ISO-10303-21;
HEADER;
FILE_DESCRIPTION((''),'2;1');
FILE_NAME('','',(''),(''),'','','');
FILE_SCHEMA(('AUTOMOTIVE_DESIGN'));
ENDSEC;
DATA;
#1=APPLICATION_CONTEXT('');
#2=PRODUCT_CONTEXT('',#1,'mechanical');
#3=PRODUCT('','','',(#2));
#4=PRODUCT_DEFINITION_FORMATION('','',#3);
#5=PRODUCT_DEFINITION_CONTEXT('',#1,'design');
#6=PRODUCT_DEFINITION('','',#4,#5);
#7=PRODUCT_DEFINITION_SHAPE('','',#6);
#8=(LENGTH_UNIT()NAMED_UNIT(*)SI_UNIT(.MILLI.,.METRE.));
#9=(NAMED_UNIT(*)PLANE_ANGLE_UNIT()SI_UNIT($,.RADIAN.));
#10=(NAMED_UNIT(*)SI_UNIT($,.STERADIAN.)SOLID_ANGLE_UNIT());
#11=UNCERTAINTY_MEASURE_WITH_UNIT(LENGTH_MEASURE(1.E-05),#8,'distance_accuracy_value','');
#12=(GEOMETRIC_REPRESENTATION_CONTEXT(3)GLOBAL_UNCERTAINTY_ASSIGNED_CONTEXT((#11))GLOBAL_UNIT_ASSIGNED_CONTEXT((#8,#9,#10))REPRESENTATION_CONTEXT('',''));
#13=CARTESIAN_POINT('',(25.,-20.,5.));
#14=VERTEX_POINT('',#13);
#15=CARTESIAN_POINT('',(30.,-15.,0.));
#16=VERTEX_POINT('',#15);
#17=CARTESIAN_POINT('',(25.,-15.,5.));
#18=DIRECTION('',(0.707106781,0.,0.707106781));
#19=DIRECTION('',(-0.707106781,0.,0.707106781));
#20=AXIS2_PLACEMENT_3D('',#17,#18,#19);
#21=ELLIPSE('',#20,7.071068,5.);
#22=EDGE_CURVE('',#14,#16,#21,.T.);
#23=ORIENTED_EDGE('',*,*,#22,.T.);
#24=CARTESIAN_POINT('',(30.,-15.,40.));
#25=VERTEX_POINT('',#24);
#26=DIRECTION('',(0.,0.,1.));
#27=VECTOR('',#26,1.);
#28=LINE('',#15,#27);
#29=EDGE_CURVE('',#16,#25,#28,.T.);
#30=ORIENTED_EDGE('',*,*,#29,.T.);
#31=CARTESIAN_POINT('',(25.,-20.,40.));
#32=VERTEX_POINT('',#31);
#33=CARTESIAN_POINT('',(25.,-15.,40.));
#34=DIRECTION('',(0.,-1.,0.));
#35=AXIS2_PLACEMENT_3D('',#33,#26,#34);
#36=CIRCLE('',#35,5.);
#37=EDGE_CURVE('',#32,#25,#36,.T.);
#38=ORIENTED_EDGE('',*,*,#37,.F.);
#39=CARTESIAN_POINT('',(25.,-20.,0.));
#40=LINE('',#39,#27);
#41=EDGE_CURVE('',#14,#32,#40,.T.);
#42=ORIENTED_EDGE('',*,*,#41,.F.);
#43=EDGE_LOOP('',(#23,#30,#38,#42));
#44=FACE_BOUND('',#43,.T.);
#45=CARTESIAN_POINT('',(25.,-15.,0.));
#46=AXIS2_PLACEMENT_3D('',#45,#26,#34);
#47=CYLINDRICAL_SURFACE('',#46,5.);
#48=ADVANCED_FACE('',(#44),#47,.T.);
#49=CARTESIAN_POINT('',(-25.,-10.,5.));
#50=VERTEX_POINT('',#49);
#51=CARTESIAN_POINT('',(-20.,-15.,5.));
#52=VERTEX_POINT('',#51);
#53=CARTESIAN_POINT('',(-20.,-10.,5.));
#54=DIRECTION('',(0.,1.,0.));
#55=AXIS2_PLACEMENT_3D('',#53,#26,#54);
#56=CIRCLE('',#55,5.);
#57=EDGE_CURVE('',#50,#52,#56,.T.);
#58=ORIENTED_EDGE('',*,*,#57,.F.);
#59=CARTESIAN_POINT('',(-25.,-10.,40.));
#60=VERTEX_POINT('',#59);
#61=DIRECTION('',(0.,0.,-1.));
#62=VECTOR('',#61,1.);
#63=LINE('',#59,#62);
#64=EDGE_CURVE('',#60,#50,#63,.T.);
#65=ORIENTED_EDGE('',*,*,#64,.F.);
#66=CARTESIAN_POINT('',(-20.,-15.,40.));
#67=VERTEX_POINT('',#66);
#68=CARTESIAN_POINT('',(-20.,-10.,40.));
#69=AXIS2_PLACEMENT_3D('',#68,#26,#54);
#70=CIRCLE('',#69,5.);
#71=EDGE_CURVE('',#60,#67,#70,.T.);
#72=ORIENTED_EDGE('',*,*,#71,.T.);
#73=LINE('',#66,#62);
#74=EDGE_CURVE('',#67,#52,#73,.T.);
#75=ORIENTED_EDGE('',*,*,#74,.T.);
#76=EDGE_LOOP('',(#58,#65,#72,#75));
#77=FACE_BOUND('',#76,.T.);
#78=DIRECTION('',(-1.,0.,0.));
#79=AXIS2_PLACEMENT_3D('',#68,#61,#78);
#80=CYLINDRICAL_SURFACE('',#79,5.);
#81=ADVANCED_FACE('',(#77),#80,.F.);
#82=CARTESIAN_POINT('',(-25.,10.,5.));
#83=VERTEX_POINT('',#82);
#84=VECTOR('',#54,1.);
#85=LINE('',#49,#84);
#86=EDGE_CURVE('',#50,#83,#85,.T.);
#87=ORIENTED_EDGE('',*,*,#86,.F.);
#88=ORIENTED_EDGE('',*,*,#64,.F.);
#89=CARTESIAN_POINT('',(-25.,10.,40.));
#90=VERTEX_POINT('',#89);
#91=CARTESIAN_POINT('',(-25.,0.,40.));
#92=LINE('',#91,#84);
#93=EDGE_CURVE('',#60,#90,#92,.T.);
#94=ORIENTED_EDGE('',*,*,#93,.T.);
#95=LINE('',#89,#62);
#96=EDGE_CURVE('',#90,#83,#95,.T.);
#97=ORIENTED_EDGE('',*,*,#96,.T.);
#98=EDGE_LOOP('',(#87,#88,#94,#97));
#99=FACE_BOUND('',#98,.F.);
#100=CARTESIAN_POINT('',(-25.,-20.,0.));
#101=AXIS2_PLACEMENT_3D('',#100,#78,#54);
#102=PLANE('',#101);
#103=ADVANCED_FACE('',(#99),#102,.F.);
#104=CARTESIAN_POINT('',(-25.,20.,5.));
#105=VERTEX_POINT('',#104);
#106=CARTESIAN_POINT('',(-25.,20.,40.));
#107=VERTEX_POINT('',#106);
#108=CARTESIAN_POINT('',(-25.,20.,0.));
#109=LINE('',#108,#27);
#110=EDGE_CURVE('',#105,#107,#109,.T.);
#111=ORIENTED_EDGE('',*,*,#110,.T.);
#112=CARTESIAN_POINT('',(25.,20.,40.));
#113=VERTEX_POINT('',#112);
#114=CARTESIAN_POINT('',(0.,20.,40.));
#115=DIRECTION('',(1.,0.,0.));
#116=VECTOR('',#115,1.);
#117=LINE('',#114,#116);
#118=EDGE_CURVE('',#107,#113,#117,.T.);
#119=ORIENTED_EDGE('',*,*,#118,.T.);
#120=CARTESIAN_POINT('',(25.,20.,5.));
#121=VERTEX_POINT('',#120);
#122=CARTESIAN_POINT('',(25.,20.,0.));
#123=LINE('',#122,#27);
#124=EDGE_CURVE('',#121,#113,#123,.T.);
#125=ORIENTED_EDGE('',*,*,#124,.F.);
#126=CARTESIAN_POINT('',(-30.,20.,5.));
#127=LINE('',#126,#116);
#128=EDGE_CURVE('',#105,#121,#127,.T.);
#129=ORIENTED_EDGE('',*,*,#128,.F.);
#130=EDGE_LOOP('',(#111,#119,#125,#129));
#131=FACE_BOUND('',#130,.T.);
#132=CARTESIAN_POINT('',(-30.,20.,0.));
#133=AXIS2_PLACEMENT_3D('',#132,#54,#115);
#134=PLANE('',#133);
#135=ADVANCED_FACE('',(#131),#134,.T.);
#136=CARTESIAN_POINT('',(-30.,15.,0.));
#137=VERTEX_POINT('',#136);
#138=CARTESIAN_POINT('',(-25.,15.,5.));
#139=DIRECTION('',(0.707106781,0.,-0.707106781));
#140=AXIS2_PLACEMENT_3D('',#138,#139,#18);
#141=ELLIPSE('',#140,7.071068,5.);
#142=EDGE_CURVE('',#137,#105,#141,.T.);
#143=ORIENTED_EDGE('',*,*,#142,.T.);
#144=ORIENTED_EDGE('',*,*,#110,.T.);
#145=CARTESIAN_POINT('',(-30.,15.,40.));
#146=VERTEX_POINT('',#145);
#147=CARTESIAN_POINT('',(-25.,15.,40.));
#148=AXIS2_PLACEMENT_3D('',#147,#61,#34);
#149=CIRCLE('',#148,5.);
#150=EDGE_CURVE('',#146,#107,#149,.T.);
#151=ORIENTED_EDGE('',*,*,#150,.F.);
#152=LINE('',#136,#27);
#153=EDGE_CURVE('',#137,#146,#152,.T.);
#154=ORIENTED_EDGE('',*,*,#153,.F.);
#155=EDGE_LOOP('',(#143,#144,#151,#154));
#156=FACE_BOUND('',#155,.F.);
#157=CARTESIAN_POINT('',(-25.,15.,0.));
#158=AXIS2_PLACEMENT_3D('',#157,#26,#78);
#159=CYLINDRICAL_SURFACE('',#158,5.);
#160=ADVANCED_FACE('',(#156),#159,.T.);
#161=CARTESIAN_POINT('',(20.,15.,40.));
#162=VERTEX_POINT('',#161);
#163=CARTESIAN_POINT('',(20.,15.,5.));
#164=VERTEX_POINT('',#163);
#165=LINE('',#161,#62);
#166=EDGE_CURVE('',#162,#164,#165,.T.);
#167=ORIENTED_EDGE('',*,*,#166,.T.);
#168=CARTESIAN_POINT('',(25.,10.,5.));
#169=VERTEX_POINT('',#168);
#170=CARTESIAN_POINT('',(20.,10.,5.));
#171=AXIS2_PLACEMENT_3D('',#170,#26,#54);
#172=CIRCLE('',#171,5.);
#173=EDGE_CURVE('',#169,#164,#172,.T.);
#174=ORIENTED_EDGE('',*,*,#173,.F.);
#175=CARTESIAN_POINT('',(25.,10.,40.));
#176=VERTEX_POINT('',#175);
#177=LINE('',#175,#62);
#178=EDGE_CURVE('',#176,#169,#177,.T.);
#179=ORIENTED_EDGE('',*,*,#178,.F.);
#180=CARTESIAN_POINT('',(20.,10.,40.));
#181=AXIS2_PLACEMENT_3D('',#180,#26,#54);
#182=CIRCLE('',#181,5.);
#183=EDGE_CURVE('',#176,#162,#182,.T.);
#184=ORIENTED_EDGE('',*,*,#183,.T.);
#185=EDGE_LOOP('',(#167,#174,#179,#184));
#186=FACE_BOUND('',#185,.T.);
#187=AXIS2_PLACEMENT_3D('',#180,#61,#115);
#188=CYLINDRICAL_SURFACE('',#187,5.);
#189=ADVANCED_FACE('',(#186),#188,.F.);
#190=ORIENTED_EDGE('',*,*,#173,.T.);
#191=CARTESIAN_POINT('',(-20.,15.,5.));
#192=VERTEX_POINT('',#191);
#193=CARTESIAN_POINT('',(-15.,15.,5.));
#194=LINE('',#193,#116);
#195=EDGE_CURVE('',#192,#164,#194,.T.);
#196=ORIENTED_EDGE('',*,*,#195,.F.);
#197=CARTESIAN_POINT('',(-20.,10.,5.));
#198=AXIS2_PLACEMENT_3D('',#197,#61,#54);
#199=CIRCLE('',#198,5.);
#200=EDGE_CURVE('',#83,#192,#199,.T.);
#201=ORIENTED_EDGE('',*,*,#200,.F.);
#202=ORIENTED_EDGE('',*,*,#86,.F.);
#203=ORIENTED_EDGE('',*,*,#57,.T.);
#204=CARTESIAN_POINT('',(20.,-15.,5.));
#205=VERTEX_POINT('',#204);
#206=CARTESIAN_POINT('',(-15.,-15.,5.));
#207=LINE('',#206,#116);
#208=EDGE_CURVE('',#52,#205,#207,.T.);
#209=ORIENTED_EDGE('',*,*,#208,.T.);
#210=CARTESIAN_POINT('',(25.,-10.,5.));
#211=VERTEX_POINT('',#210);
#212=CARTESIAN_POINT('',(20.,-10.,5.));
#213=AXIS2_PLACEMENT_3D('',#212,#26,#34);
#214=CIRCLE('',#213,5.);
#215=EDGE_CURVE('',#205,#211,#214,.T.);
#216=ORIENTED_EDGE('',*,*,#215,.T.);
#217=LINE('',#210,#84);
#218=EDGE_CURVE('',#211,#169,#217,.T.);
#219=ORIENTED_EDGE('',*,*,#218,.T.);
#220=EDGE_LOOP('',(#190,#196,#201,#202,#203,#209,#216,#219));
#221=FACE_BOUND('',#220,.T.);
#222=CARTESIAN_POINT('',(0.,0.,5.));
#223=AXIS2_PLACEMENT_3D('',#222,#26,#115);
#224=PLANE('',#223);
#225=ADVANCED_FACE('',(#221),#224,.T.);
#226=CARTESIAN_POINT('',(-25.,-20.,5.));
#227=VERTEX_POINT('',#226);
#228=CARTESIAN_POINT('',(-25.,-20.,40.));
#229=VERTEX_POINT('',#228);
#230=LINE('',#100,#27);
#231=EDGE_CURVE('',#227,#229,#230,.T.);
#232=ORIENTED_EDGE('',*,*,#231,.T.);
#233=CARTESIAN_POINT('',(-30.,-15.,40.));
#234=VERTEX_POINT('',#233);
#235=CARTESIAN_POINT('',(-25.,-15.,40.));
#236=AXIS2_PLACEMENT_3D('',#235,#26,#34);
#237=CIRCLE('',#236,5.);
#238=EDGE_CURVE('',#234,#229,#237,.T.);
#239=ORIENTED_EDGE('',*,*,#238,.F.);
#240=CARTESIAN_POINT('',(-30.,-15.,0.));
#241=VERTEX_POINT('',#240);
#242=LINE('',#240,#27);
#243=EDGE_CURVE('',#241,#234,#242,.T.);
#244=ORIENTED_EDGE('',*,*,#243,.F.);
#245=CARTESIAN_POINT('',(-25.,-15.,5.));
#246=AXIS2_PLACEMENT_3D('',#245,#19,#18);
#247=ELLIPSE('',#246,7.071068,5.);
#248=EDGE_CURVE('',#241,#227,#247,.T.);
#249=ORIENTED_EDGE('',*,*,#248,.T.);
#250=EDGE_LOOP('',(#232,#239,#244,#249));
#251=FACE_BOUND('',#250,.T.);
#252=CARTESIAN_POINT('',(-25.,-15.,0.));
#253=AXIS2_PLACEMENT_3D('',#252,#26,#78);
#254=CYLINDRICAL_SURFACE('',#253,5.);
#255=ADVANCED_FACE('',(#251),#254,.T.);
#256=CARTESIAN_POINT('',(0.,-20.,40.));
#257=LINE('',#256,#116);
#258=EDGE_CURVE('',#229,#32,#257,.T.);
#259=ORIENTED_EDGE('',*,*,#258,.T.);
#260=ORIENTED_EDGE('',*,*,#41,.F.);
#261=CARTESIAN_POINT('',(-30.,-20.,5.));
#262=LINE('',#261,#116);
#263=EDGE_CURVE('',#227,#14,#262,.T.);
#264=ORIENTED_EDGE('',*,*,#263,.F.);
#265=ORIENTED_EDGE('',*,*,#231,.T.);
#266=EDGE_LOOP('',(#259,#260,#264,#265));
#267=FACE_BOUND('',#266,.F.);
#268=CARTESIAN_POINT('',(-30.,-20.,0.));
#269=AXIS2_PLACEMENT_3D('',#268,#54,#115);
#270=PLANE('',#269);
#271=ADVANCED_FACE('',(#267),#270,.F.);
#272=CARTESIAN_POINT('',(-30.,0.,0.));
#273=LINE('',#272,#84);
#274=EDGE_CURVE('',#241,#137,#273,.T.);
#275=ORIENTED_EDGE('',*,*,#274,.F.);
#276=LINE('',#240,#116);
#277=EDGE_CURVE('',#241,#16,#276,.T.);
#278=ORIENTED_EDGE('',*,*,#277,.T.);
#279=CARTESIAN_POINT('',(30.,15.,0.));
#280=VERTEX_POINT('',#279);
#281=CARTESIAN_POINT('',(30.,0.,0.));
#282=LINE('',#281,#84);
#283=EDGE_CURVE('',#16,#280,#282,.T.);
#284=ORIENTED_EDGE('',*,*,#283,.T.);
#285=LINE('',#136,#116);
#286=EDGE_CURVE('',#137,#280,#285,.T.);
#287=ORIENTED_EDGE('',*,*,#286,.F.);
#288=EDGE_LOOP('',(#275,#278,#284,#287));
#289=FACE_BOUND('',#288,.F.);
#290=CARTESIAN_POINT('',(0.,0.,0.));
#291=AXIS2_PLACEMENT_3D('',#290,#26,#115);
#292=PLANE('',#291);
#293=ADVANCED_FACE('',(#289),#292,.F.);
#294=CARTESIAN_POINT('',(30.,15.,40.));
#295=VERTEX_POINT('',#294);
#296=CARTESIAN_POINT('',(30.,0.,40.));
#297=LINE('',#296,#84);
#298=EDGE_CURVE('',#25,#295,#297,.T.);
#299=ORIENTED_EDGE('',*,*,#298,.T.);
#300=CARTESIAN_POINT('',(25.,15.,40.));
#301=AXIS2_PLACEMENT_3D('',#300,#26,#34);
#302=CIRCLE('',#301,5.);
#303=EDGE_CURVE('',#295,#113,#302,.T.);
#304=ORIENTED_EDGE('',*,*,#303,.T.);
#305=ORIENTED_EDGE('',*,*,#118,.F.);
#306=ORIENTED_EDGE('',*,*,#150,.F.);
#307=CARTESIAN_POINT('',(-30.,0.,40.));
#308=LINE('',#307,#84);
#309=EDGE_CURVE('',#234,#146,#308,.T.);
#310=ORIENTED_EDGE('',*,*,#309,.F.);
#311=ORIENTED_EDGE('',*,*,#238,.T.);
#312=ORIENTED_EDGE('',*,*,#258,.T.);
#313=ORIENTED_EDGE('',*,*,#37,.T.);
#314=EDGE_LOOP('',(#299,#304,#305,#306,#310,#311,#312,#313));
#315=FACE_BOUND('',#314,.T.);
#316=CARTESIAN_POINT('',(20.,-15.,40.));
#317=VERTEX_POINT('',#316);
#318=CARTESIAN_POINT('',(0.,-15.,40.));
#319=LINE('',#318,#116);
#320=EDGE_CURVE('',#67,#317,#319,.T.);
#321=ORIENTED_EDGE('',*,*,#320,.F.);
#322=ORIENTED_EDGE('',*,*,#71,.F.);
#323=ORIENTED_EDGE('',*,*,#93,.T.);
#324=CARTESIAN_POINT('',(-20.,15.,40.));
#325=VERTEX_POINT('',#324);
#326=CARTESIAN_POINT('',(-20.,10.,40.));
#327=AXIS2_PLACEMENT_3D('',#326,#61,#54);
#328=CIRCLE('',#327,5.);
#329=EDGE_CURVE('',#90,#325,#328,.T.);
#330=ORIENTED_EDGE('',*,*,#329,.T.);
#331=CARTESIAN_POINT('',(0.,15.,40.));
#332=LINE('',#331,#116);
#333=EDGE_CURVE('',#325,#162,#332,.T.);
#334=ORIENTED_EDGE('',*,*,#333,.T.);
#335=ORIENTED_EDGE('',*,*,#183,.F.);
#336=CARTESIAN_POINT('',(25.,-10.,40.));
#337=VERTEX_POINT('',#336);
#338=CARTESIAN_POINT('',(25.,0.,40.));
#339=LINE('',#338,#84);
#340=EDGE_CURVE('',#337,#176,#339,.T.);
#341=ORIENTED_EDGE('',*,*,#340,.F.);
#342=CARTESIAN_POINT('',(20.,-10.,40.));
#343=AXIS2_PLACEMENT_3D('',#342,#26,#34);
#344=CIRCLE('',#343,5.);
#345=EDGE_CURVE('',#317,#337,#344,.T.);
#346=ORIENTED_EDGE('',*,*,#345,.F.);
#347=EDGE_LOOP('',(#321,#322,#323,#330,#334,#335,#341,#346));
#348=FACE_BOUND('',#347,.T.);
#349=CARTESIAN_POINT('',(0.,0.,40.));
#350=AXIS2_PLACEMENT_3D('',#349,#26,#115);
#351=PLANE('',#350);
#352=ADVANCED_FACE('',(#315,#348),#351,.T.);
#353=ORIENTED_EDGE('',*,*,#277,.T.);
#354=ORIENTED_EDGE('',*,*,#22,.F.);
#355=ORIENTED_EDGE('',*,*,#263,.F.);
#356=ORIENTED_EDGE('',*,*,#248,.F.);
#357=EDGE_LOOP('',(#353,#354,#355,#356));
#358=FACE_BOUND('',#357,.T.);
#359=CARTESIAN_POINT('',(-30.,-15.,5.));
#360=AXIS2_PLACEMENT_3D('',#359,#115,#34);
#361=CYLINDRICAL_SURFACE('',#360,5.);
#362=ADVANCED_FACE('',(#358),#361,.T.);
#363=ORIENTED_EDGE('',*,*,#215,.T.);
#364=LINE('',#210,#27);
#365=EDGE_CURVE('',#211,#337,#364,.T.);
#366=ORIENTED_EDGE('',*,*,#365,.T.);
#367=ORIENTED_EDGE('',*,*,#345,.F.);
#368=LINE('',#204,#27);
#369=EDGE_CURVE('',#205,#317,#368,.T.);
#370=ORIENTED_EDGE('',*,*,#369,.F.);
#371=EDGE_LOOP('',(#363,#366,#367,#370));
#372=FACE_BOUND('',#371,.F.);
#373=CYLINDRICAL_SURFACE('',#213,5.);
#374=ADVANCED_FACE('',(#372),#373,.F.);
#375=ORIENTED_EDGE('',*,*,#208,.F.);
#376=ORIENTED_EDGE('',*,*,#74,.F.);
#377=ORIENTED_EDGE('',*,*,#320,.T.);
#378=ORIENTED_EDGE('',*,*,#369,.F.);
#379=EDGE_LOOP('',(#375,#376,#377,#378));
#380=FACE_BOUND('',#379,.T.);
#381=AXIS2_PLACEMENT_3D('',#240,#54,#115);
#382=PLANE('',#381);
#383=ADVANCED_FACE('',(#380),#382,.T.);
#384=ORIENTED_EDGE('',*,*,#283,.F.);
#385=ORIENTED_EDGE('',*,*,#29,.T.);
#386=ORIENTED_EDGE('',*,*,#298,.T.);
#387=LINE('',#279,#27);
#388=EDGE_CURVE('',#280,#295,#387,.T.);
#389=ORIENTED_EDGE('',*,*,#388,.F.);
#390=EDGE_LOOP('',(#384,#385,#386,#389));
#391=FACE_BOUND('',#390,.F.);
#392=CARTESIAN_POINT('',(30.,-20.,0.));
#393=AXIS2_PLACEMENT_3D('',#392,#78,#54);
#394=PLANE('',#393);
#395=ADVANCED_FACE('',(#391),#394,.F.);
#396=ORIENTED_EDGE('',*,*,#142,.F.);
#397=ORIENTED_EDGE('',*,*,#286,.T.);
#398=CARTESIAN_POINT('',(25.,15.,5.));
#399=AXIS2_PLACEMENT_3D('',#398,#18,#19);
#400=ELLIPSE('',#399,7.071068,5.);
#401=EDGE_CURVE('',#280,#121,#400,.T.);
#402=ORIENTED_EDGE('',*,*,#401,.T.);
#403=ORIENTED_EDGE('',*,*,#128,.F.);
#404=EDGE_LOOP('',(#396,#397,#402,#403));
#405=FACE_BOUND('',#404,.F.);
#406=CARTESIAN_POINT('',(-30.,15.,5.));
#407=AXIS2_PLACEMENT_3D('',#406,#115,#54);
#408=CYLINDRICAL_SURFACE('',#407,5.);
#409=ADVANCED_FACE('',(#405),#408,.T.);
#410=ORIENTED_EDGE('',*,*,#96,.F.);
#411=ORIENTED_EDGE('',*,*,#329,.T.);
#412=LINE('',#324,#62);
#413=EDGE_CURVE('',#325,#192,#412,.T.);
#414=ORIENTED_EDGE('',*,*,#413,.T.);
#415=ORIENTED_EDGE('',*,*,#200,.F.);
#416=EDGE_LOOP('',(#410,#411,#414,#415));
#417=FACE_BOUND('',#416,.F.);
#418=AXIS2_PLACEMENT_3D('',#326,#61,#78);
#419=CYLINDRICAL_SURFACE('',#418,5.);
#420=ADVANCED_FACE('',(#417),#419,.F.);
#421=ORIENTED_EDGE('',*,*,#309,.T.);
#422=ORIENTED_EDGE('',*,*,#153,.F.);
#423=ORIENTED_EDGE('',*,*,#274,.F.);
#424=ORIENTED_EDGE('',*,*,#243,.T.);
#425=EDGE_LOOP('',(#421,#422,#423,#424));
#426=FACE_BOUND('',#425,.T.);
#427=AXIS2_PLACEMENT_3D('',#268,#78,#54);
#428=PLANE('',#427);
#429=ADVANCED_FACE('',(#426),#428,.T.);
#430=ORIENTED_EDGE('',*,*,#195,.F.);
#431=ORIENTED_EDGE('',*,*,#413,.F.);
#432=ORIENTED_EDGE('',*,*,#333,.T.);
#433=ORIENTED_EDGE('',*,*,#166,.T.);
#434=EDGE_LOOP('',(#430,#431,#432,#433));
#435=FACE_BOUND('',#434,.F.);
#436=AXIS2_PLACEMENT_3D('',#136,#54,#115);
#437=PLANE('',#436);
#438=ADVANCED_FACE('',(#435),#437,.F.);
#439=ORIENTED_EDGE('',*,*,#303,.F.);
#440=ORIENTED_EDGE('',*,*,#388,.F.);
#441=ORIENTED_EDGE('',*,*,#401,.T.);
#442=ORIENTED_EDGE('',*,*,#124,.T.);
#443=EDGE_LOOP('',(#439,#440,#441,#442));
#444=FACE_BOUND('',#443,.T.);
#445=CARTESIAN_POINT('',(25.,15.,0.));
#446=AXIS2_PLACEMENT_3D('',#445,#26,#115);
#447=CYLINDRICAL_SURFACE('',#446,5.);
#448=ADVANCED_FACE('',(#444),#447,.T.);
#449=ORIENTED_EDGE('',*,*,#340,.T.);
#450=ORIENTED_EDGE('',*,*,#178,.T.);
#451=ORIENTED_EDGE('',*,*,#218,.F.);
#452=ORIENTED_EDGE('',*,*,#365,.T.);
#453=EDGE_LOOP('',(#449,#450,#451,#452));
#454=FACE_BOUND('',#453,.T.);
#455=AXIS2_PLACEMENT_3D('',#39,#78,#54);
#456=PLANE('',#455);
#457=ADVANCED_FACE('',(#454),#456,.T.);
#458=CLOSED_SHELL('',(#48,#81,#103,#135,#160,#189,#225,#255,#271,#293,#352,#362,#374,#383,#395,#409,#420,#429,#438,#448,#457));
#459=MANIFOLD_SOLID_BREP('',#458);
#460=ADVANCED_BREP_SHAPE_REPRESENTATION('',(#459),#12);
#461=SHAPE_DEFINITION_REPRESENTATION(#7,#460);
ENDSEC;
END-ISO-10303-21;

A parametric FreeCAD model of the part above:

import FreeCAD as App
import Part
import Sketcher

V = App.Vector


def edges_at(feature, points):
    """Names of the edges that pass closest to the given points."""
    edges = feature.Shape.Edges
    near = lambda p: min(range(len(edges)), key=lambda i: edges[i].distToShape(Part.Vertex(*p))[0])
    return sorted({f"Edge{near(p) + 1}" for p in points})


def faces_at(feature, points):
    """Names of the faces that lie closest to the given points."""
    faces = feature.Shape.Faces
    near = lambda p: min(range(len(faces)), key=lambda i: faces[i].distToShape(Part.Vertex(*p))[0])
    return sorted({f"Face{near(p) + 1}" for p in points})


def add_polygon(sketch, points):
    """Adds a closed chain of lines whose ends are joined by coincident constraints."""
    first, n = sketch.GeometryCount, len(points)
    for a, b in zip(points, points[1:] + points[:1]):
        sketch.addGeometry(Part.LineSegment(App.Vector(*a, 0), App.Vector(*b, 0)), False)
    for i in range(n):
        sketch.addConstraint(Sketcher.Constraint("Coincident", first + i, 2, first + (i + 1) % n, 1))

doc = App.newDocument("Part")
body = doc.addObject("PartDesign::Body", "Body")

# Sketch on XY plane
sketch1 = body.newObject("Sketcher::SketchObject", "Sketch")
sketch1.AttachmentSupport = (doc.getObject("XY_Plane"), [""])
sketch1.MapMode = "FlatFace"
add_polygon(sketch1, [(-30, 20), (-30, -20), (30, -20), (30, 20)])  # lines 0-3
sketch1.addConstraint([
    Sketcher.Constraint("Vertical", 0),
    Sketcher.Constraint("Horizontal", 1),
    Sketcher.Constraint("Vertical", 2),
    Sketcher.Constraint("Horizontal", 3),
    Sketcher.Constraint("Symmetric", 0, 2, 2, 2, -1, 1),
    Sketcher.Constraint("DistanceX", 1, 1, 1, 2, 60.0),
    Sketcher.Constraint("DistanceY", 0, 2, 0, 1, 40.0),
])
pad1 = body.newObject("PartDesign::Pad", "Pad")
pad1.Profile = sketch1
pad1.Length = 40
doc.recompute()

thickness = body.newObject("PartDesign::Thickness", "Thickness")
thickness.Base = (pad1, faces_at(pad1, [(0, 0, 40)]))
thickness.Value = 5
thickness.Reversed = True
thickness.Join = "Arc"
doc.recompute()

fillet = body.newObject("PartDesign::Fillet", "Fillet")
fillet.Base = (thickness, edges_at(thickness, [
    (-30, 20, 20),
    (30, 20, 20),
    (-30, -20, 20),
    (30, -20, 20),
    (-25, -15, 22.5),
    (-25, 15, 22.5),
    (25, -15, 22.5),
    (25, 15, 22.5),
    (0, 20, 0),
    (0, -20, 0),
]))
fillet.Radius = 5

doc.recompute()
